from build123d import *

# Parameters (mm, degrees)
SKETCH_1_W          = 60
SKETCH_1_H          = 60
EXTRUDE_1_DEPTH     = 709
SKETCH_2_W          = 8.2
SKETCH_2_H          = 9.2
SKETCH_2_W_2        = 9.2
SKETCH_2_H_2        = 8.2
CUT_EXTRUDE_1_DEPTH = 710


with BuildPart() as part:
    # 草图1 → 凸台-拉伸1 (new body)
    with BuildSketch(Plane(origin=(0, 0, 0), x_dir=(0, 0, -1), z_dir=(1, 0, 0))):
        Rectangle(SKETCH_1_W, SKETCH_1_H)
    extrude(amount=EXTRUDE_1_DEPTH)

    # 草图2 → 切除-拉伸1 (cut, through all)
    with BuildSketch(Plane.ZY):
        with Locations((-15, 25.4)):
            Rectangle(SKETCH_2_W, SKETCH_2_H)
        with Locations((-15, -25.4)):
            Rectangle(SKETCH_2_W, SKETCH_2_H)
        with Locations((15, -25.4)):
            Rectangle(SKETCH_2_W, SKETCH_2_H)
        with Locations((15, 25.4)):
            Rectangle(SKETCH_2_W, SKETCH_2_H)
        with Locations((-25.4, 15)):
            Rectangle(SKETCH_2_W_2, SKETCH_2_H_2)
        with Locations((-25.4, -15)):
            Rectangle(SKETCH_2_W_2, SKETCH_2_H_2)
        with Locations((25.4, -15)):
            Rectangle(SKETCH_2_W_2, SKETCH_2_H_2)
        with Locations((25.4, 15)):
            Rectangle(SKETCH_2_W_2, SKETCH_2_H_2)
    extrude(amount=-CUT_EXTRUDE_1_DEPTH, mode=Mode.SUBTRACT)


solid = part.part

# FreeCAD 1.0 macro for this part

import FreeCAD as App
import Part
import Sketcher
from FreeCAD import Vector

doc = App.newDocument("Part")
body = doc.addObject("PartDesign::Body", "Body")

sketch1 = body.newObject("Sketcher::SketchObject", "Sketch")
sketch1.AttachmentSupport = (doc.getObject("YZ_Plane"), [""])
sketch1.MapMode = "FlatFace"
sketch1.addGeometry([
    Part.LineSegment(Vector(30, 30, 0), Vector(-30, 30, 0)),
    Part.LineSegment(Vector(-30, 30, 0), Vector(-30, -30, 0)),
    Part.LineSegment(Vector(-30, -30, 0), Vector(30, -30, 0)),
    Part.LineSegment(Vector(30, -30, 0), Vector(30, 30, 0)),
], False)
sketch1.addConstraint([
    Sketcher.Constraint("Coincident", 0, 2, 1, 1),
    Sketcher.Constraint("Coincident", 1, 2, 2, 1),
    Sketcher.Constraint("Coincident", 2, 2, 3, 1),
    Sketcher.Constraint("Coincident", 3, 2, 0, 1),
    Sketcher.Constraint("Horizontal", 0),
    Sketcher.Constraint("Vertical", 1),
    Sketcher.Constraint("Horizontal", 2),
    Sketcher.Constraint("Vertical", 3),
    Sketcher.Constraint("Symmetric", 0, 2, 2, 2, -1, 1),
    Sketcher.Constraint("Equal", 2, 1),
    Sketcher.Constraint("DistanceX", 0, 2, 0, 1, 60.0),
])
pad1 = body.newObject("PartDesign::Pad", "Pad")
pad1.Profile = sketch1
pad1.Length = 709

sketch2 = body.newObject("Sketcher::SketchObject", "Sketch001")
sketch2.AttachmentSupport = (doc.getObject("YZ_Plane"), [""])
sketch2.MapMode = "FlatFace"
sketch2.addGeometry([
    Part.LineSegment(Vector(30, -19, 0), Vector(21, -19, 0)),
    Part.LineSegment(Vector(21, -19, 0), Vector(21, -11, 0)),
    Part.LineSegment(Vector(21, -11, 0), Vector(30, -11, 0)),
    Part.LineSegment(Vector(30, -11, 0), Vector(30, -19, 0)),
    Part.LineSegment(Vector(-21, -19, 0), Vector(-30, -19, 0)),
    Part.LineSegment(Vector(-30, -19, 0), Vector(-30, -11, 0)),
    Part.LineSegment(Vector(-30, -11, 0), Vector(-21, -11, 0)),
    Part.LineSegment(Vector(-21, -11, 0), Vector(-21, -19, 0)),
    Part.LineSegment(Vector(-21, 11, 0), Vector(-30, 11, 0)),
    Part.LineSegment(Vector(-30, 11, 0), Vector(-30, 19, 0)),
    Part.LineSegment(Vector(-30, 19, 0), Vector(-21, 19, 0)),
    Part.LineSegment(Vector(-21, 19, 0), Vector(-21, 11, 0)),
    Part.LineSegment(Vector(30, 11, 0), Vector(21, 11, 0)),
    Part.LineSegment(Vector(21, 11, 0), Vector(21, 19, 0)),
    Part.LineSegment(Vector(21, 19, 0), Vector(30, 19, 0)),
    Part.LineSegment(Vector(30, 19, 0), Vector(30, 11, 0)),
    Part.LineSegment(Vector(19, -30, 0), Vector(11, -30, 0)),
    Part.LineSegment(Vector(11, -30, 0), Vector(11, -21, 0)),
    Part.LineSegment(Vector(11, -21, 0), Vector(19, -21, 0)),
    Part.LineSegment(Vector(19, -21, 0), Vector(19, -30, 0)),
    Part.LineSegment(Vector(-11, -30, 0), Vector(-19, -30, 0)),
    Part.LineSegment(Vector(-19, -30, 0), Vector(-19, -21, 0)),
    Part.LineSegment(Vector(-19, -21, 0), Vector(-11, -21, 0)),
    Part.LineSegment(Vector(-11, -21, 0), Vector(-11, -30, 0)),
    Part.LineSegment(Vector(-11, 21, 0), Vector(-19, 21, 0)),
    Part.LineSegment(Vector(-19, 21, 0), Vector(-19, 30, 0)),
    Part.LineSegment(Vector(-19, 30, 0), Vector(-11, 30, 0)),
    Part.LineSegment(Vector(-11, 30, 0), Vector(-11, 21, 0)),
    Part.LineSegment(Vector(19, 21, 0), Vector(11, 21, 0)),
    Part.LineSegment(Vector(11, 21, 0), Vector(11, 30, 0)),
    Part.LineSegment(Vector(11, 30, 0), Vector(19, 30, 0)),
    Part.LineSegment(Vector(19, 30, 0), Vector(19, 21, 0)),
], False)
sketch2.addConstraint([
    Sketcher.Constraint("Coincident", 0, 2, 1, 1),
    Sketcher.Constraint("Coincident", 1, 2, 2, 1),
    Sketcher.Constraint("Coincident", 2, 2, 3, 1),
    Sketcher.Constraint("Coincident", 3, 2, 0, 1),
    Sketcher.Constraint("Coincident", 4, 2, 5, 1),
    Sketcher.Constraint("Coincident", 5, 2, 6, 1),
    Sketcher.Constraint("Coincident", 6, 2, 7, 1),
    Sketcher.Constraint("Coincident", 7, 2, 4, 1),
    Sketcher.Constraint("Coincident", 8, 2, 9, 1),
    Sketcher.Constraint("Coincident", 9, 2, 10, 1),
    Sketcher.Constraint("Coincident", 10, 2, 11, 1),
    Sketcher.Constraint("Coincident", 11, 2, 8, 1),
    Sketcher.Constraint("Coincident", 12, 2, 13, 1),
    Sketcher.Constraint("Coincident", 13, 2, 14, 1),
    Sketcher.Constraint("Coincident", 14, 2, 15, 1),
    Sketcher.Constraint("Coincident", 15, 2, 12, 1),
    Sketcher.Constraint("Coincident", 16, 2, 17, 1),
    Sketcher.Constraint("Coincident", 17, 2, 18, 1),
    Sketcher.Constraint("Coincident", 18, 2, 19, 1),
    Sketcher.Constraint("Coincident", 19, 2, 16, 1),
    Sketcher.Constraint("Coincident", 20, 2, 21, 1),
    Sketcher.Constraint("Coincident", 21, 2, 22, 1),
    Sketcher.Constraint("Coincident", 22, 2, 23, 1),
    Sketcher.Constraint("Coincident", 23, 2, 20, 1),
    Sketcher.Constraint("Coincident", 24, 2, 25, 1),
    Sketcher.Constraint("Coincident", 25, 2, 26, 1),
    Sketcher.Constraint("Coincident", 26, 2, 27, 1),
    Sketcher.Constraint("Coincident", 27, 2, 24, 1),
    Sketcher.Constraint("Coincident", 28, 2, 29, 1),
    Sketcher.Constraint("Coincident", 29, 2, 30, 1),
    Sketcher.Constraint("Coincident", 30, 2, 31, 1),
    Sketcher.Constraint("Coincident", 31, 2, 28, 1),
    Sketcher.Constraint("Horizontal", 0),
    Sketcher.Constraint("Vertical", 1),
    Sketcher.Constraint("Horizontal", 2),
    Sketcher.Constraint("Vertical", 3),
    Sketcher.Constraint("Horizontal", 4),
    Sketcher.Constraint("Vertical", 5),
    Sketcher.Constraint("Horizontal", 6),
    Sketcher.Constraint("Vertical", 7),
    Sketcher.Constraint("Horizontal", 8),
    Sketcher.Constraint("Vertical", 9),
    Sketcher.Constraint("Horizontal", 10),
    Sketcher.Constraint("Vertical", 11),
    Sketcher.Constraint("Horizontal", 12),
    Sketcher.Constraint("Vertical", 13),
    Sketcher.Constraint("Horizontal", 14),
    Sketcher.Constraint("Vertical", 15),
    Sketcher.Constraint("Horizontal", 16),
    Sketcher.Constraint("Vertical", 17),
    Sketcher.Constraint("Horizontal", 18),
    Sketcher.Constraint("Vertical", 19),
    Sketcher.Constraint("Horizontal", 20),
    Sketcher.Constraint("Vertical", 21),
    Sketcher.Constraint("Horizontal", 22),
    Sketcher.Constraint("Vertical", 23),
    Sketcher.Constraint("Horizontal", 24),
    Sketcher.Constraint("Vertical", 25),
    Sketcher.Constraint("Horizontal", 26),
    Sketcher.Constraint("Vertical", 27),
    Sketcher.Constraint("Horizontal", 28),
    Sketcher.Constraint("Vertical", 29),
    Sketcher.Constraint("Horizontal", 30),
    Sketcher.Constraint("Vertical", 31),
    Sketcher.Constraint("Symmetric", 2, 2, 8, 2, -1, 1),
    Sketcher.Constraint("Symmetric", 0, 2, 10, 2, -1, 1),
    Sketcher.Constraint("Symmetric", 6, 2, 12, 2, -1, 1),
    Sketcher.Constraint("Symmetric", 4, 2, 14, 2, -1, 1),
    Sketcher.Constraint("Symmetric", 18, 2, 24, 2, -1, 1),
    Sketcher.Constraint("Symmetric", 16, 2, 26, 2, -1, 1),
    Sketcher.Constraint("Symmetric", 22, 2, 28, 2, -1, 1),
    Sketcher.Constraint("Symmetric", 20, 2, 30, 2, -1, 1),
    Sketcher.Constraint("Symmetric", 3, 2, 4, 2, -2),
    Sketcher.Constraint("Symmetric", 1, 2, 6, 2, -2),
    Sketcher.Constraint("Symmetric", 19, 2, 20, 2, -2),
    Sketcher.Constraint("Symmetric", 17, 2, 22, 2, -2),
    Sketcher.Constraint("Equal", 30, 1),
    Sketcher.Constraint("Equal", 14, 17),
    Sketcher.Constraint("DistanceX", 0, 2, 0, 1, 9.2),
    Sketcher.Constraint("DistanceX", 16, 2, 16, 1, 8.2),
    Sketcher.Constraint("DistanceX", -1, 1, 2, 2, 30.0),
    Sketcher.Constraint("DistanceY", 16, 2, -1, 1, 30.0),
    Sketcher.Constraint("DistanceY", 4, 2, 8, 2, 30.0),
    Sketcher.Constraint("DistanceX", 20, 2, 16, 2, 30.0),
])
pocket1 = body.newObject("PartDesign::Pocket", "Pocket")
pocket1.Profile = sketch2
pocket1.Type = "ThroughAll"
pocket1.Reversed = True

doc.recompute()
